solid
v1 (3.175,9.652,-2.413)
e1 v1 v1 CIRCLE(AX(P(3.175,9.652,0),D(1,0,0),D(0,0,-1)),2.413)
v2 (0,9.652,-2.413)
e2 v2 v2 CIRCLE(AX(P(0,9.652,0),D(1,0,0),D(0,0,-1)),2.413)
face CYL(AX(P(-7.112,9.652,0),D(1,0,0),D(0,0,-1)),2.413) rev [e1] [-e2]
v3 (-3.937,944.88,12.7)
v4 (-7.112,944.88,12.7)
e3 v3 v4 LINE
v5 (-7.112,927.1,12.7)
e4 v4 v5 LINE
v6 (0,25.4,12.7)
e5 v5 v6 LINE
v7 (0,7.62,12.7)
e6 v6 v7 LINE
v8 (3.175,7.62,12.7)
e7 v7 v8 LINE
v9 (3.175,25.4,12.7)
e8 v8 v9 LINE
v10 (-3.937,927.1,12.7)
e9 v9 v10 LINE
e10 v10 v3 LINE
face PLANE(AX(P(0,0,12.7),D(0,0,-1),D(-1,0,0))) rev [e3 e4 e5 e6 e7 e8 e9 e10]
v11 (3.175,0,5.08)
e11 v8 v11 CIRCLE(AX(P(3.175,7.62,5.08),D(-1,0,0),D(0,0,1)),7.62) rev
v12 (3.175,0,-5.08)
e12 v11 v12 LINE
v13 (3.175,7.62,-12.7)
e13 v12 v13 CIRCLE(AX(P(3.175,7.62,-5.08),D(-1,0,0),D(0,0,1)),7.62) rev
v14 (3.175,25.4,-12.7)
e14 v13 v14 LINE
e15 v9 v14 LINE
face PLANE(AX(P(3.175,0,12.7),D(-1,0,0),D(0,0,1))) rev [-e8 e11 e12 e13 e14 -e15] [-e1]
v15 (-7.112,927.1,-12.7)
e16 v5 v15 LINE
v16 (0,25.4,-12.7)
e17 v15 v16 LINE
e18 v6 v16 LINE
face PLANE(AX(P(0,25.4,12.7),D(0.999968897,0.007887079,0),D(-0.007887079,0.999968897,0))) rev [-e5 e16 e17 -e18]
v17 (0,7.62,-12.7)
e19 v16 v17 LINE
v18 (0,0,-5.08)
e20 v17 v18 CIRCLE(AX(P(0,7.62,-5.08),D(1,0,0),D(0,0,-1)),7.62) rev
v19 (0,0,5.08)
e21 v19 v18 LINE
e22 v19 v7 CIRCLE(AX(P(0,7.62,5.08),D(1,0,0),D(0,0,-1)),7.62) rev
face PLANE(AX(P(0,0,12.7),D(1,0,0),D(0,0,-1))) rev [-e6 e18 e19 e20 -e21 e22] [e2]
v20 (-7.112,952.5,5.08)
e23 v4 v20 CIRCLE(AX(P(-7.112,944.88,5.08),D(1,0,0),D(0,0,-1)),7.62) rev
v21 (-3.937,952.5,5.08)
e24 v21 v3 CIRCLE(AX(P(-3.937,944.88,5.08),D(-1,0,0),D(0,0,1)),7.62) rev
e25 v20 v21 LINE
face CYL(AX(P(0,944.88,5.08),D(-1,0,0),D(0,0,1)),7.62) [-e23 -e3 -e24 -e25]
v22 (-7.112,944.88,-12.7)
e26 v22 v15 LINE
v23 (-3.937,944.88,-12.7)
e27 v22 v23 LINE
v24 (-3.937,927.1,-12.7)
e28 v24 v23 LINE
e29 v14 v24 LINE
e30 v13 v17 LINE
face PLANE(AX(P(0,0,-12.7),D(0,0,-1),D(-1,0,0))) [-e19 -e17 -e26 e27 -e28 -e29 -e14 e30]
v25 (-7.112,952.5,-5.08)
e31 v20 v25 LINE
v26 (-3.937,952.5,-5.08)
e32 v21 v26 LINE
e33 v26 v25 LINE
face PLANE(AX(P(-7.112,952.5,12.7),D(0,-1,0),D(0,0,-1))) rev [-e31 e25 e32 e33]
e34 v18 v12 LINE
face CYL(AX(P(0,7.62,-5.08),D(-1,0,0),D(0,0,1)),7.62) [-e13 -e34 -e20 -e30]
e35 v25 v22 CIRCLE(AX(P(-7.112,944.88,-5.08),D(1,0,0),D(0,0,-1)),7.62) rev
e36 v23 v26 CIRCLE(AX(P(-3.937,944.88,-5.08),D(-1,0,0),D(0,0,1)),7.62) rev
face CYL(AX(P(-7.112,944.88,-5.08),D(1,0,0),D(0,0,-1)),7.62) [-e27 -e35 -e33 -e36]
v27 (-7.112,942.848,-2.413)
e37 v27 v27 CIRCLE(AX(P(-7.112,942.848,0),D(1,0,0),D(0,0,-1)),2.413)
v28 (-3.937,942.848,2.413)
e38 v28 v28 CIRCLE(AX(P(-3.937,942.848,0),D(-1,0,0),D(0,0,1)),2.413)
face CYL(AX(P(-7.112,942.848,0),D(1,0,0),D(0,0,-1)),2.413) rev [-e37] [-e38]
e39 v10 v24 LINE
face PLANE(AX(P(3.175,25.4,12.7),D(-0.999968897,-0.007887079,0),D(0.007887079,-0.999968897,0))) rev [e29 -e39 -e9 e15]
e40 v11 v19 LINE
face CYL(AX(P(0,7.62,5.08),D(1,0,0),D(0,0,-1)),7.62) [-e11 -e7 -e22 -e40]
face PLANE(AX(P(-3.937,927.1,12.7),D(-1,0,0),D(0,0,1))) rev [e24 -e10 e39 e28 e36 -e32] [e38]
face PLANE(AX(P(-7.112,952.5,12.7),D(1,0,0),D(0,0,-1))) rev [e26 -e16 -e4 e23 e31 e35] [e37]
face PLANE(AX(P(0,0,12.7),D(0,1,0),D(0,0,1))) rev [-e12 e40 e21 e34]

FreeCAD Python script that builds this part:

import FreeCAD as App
import Part
import Sketcher
Q = App.Units.Quantity


def edges_at(feature, points):
    """Names of the edges that pass closest to the given points."""
    edges = feature.Shape.Edges
    near = lambda p: min(range(len(edges)), key=lambda i: edges[i].distToShape(Part.Vertex(*p))[0])
    return sorted({f"Edge{near(p) + 1}" for p in points})

doc = App.newDocument("Part")
params = doc.addObject("Spreadsheet::Sheet", "Params")
for row, (alias, value) in enumerate([
    ("sketch1_height", "1 in"),
    ("sketch1_width", "0.125 in"),
    ("pad1_length", "1 in"),
    ("fillet_radius", "0.3 in"),
    ("sketch2_diameter", "0.19 in"),
], start=1):
    params.set(f"A{row}", alias)
    params.set(f"B{row}", "=" + value)
    params.setAlias(f"B{row}", alias)

body = doc.addObject("PartDesign::Body", "Body")

# Sketch on XY plane
sketch1 = doc.addObject("Sketcher::SketchObject", "Sketch")
body.addObject(sketch1)
sketch1.AttachmentSupport = (doc.XY_Plane, [""])
sketch1.MapMode = "FlatFace"
sketch1.addGeometry(Part.LineSegment(App.Vector(0, 0, 0), App.Vector(3.2, 0, 0)), False)
sketch1.addGeometry(Part.LineSegment(App.Vector(3.2, 0, 0), App.Vector(3.2, 25.4, 0)), False)
sketch1.addGeometry(Part.LineSegment(App.Vector(3.2, 25.4, 0), App.Vector(-3.9, 927.1, 0)), False)
sketch1.addGeometry(Part.LineSegment(App.Vector(-3.9, 927.1, 0), App.Vector(-3.9, 952.5, 0)), False)
sketch1.addGeometry(Part.LineSegment(App.Vector(-3.9, 952.5, 0), App.Vector(-7.1, 952.5, 0)), False)
sketch1.addGeometry(Part.LineSegment(App.Vector(-7.1, 952.5, 0), App.Vector(-7.1, 927.1, 0)), False)
sketch1.addGeometry(Part.LineSegment(App.Vector(-7.1, 927.1, 0), App.Vector(0, 25.4, 0)), False)
sketch1.addGeometry(Part.LineSegment(App.Vector(0, 25.4, 0), App.Vector(0, 0, 0)), False)
sketch1.addConstraint(Sketcher.Constraint("Coincident", 0, 2, 1, 1))
sketch1.addConstraint(Sketcher.Constraint("Coincident", 1, 2, 2, 1))
sketch1.addConstraint(Sketcher.Constraint("Coincident", 2, 2, 3, 1))
sketch1.addConstraint(Sketcher.Constraint("Coincident", 3, 2, 4, 1))
sketch1.addConstraint(Sketcher.Constraint("Coincident", 4, 2, 5, 1))
sketch1.addConstraint(Sketcher.Constraint("Coincident", 5, 2, 6, 1))
sketch1.addConstraint(Sketcher.Constraint("Coincident", 6, 2, 7, 1))
sketch1.addConstraint(Sketcher.Constraint("Coincident", 7, 2, 0, 1))
sketch1.addConstraint(Sketcher.Constraint("Horizontal", 0))
sketch1.addConstraint(Sketcher.Constraint("Vertical", 1))
sketch1.addConstraint(Sketcher.Constraint("Vertical", 3))
sketch1.addConstraint(Sketcher.Constraint("Horizontal", 4))
sketch1.addConstraint(Sketcher.Constraint("Vertical", 5))
sketch1.addConstraint(Sketcher.Constraint("Vertical", 7))
sketch1.addConstraint(Sketcher.Constraint("Coincident", 7, 2, -1, 1))
sketch1.addConstraint(Sketcher.Constraint("Parallel", 2, 6))
sketch1.addConstraint(Sketcher.Constraint("Horizontal", 2, 2, 5, 2))
sketch1.addConstraint(Sketcher.Constraint("Horizontal", 1, 2, 6, 2))
sketch1.addConstraint(Sketcher.Constraint("Equal", 1, 3))
sketch1.addConstraint(Sketcher.Constraint("DistanceY", 1, 1, 1, 2, Q("1 in")))
sketch1.addConstraint(Sketcher.Constraint("DistanceY", -1, 1, 2, 2, Q("36.5 in")))
sketch1.addConstraint(Sketcher.Constraint("DistanceX", 0, 1, 0, 2, Q("0.125 in")))
sketch1.addConstraint(Sketcher.Constraint("DistanceX", 4, 2, -1, 1, Q("0.28 in")))
sketch1.setExpression("Constraints[19]", "Params.sketch1_height")
sketch1.setExpression("Constraints[21]", "Params.sketch1_width")
pad1 = doc.addObject("PartDesign::Pad", "Pad")
body.addObject(pad1)
pad1.Profile = sketch1
pad1.setExpression("Length", "Params.pad1_length")
pad1.Midplane = True
doc.recompute()

fillet = doc.addObject("PartDesign::Fillet", "Fillet")
body.addObject(fillet)
fillet.Base = (pad1, edges_at(pad1, [
    (1.587, 0, -12.7),
    (-5.524, 952.5, 12.7),
    (1.587, 0, 12.7),
    (-5.524, 952.5, -12.7),
]))
fillet.setExpression("Radius", "Params.fillet_radius")

# Sketch on YZ plane
sketch2 = doc.addObject("Sketcher::SketchObject", "Sketch001")
body.addObject(sketch2)
sketch2.AttachmentSupport = (doc.YZ_Plane, [""])
sketch2.MapMode = "FlatFace"
sketch2.AttachmentOffset = App.Placement(App.Vector(0, 0, -0.155 * 25.4), App.Rotation())
sketch2.addGeometry(Part.Circle(App.Vector(942.8, 0, 0), App.Vector(0, 0, 1), 2.4), False)
sketch2.addGeometry(Part.Circle(App.Vector(9.7, 0, 0), App.Vector(0, 0, 1), 2.4), False)
sketch2.addConstraint(Sketcher.Constraint("Equal", 0, 1))
sketch2.addConstraint(Sketcher.Constraint("PointOnObject", 0, 3, -1))
sketch2.addConstraint(Sketcher.Constraint("PointOnObject", 1, 3, -1))
sketch2.addConstraint(Sketcher.Constraint("Diameter", 0, Q("0.19 in")))
sketch2.addConstraint(Sketcher.Constraint("DistanceX", -1, 1, 0, 3, Q("37.12 in")))
sketch2.addConstraint(Sketcher.Constraint("DistanceX", -1, 1, 1, 3, Q("0.38 in")))
sketch2.setExpression("Constraints[3]", "Params.sketch2_diameter")
pocket1 = doc.addObject("PartDesign::Pocket", "Pocket")
body.addObject(pocket1)
pocket1.Profile = sketch2
pocket1.Type = "ThroughAll"
pocket1.Midplane = True

doc.recompute()
